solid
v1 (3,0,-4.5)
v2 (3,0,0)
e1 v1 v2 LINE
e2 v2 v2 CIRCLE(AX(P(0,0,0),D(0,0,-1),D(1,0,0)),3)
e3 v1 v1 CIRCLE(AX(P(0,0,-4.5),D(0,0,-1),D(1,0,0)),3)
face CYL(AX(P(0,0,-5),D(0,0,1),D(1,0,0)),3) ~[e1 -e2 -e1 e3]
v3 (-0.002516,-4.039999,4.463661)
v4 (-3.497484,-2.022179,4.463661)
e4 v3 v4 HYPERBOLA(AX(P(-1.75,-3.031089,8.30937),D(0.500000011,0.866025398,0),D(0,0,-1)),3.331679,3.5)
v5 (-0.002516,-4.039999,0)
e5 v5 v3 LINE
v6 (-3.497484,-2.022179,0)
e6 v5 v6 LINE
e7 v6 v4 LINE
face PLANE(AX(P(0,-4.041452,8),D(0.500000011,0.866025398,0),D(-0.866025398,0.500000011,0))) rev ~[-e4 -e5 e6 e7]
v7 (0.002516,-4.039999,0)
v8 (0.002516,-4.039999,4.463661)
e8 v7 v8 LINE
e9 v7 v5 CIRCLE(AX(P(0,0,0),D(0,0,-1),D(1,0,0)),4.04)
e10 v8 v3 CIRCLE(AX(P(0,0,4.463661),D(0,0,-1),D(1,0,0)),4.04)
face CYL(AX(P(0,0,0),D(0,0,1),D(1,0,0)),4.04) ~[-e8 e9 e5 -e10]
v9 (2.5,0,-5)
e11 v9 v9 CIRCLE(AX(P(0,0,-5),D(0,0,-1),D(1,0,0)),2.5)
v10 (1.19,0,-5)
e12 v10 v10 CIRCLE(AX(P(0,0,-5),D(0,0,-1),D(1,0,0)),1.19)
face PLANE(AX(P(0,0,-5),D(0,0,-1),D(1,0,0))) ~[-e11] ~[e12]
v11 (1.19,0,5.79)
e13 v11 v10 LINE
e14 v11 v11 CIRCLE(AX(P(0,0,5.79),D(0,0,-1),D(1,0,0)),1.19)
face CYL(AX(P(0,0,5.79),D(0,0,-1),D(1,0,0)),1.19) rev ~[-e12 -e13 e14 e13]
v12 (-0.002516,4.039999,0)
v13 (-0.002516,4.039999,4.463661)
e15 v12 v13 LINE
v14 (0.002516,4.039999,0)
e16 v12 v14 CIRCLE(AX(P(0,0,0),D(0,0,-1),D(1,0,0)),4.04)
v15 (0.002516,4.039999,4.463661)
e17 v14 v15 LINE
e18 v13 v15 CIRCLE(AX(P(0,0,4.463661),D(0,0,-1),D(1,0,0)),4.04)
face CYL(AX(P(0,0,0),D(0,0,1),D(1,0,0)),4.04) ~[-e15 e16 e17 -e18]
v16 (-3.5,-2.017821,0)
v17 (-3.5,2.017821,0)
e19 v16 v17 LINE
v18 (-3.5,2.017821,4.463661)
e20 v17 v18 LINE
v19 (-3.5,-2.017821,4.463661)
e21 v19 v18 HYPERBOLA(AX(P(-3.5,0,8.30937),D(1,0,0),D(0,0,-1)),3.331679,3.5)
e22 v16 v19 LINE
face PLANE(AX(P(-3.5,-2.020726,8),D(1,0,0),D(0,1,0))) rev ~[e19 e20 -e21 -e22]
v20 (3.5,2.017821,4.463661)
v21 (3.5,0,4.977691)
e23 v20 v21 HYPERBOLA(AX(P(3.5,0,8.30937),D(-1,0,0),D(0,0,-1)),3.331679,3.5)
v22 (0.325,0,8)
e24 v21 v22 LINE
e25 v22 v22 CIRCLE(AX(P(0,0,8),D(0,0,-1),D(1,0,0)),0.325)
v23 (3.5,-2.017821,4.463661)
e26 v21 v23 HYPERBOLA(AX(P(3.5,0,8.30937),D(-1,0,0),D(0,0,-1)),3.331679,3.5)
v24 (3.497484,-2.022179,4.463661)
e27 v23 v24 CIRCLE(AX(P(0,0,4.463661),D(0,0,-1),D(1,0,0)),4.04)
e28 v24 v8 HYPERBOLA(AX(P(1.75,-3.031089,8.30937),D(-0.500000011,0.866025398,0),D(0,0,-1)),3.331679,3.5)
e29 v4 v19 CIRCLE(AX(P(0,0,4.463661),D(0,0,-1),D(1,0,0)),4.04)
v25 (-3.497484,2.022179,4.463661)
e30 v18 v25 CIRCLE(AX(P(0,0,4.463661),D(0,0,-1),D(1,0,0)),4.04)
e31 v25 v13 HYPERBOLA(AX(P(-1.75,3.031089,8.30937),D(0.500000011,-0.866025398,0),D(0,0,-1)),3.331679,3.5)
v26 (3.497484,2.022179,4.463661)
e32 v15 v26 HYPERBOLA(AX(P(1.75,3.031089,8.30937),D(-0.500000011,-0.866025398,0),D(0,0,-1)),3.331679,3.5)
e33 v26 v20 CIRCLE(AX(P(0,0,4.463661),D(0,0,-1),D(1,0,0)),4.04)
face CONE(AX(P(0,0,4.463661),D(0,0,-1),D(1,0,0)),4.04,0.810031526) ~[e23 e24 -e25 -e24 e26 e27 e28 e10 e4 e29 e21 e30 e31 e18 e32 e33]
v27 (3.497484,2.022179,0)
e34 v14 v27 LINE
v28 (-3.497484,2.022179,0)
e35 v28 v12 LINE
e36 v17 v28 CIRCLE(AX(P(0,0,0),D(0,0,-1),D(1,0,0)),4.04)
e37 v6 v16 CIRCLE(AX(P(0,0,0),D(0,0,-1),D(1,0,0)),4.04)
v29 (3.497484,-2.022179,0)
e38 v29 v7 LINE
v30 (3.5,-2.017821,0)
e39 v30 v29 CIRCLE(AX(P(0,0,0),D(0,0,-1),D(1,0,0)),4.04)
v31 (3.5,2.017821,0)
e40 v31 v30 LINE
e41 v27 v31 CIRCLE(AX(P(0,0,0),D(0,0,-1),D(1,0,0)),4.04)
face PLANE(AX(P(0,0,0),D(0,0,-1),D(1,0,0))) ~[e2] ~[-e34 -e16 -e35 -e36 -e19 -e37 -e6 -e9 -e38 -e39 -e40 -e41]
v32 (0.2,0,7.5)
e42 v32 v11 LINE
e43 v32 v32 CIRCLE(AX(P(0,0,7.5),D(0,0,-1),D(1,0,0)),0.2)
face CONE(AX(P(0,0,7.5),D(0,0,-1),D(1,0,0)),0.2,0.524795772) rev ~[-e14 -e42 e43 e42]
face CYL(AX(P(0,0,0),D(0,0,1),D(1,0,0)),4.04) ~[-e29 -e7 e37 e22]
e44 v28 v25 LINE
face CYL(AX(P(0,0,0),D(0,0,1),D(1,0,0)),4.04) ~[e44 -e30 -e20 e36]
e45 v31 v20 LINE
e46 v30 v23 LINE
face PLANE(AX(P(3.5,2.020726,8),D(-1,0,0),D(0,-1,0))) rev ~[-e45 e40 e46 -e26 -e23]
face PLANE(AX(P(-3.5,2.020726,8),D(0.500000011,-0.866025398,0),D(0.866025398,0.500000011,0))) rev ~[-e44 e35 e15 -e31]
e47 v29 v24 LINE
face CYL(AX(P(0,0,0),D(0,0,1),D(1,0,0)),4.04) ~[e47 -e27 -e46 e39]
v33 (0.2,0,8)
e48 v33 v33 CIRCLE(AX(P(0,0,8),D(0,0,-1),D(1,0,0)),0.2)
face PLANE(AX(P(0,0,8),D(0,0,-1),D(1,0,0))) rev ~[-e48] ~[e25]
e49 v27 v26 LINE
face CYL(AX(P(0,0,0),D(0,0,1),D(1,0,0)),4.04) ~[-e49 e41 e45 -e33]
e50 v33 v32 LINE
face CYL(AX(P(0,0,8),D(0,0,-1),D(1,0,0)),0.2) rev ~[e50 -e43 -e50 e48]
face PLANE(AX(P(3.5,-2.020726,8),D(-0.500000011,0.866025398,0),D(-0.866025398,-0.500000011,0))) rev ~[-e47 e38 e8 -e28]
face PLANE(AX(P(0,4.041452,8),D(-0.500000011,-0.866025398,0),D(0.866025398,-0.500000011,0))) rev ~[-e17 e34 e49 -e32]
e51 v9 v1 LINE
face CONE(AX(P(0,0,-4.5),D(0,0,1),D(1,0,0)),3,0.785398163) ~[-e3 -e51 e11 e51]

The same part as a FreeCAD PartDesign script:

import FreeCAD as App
import Part
import Sketcher
Q = App.Units.Quantity


def edges_at(feature, points):
    """Names of the edges that pass closest to the given points."""
    edges = feature.Shape.Edges
    near = lambda p: min(range(len(edges)), key=lambda i: edges[i].distToShape(Part.Vertex(*p))[0])
    return sorted({f"Edge{near(p) + 1}" for p in points})


def add_polygon(sketch, points):
    """Adds a closed chain of lines whose ends are joined by coincident constraints."""
    first, n = sketch.GeometryCount, len(points)
    for a, b in zip(points, points[1:] + points[:1]):
        sketch.addGeometry(Part.LineSegment(App.Vector(*a, 0), App.Vector(*b, 0)), False)
    for i in range(n):
        sketch.addConstraint(Sketcher.Constraint("Coincident", first + i, 2, first + (i + 1) % n, 1))

doc = App.newDocument("Part")
body = doc.addObject("PartDesign::Body", "Body")

# Sketch on XZ plane
sketch1 = body.newObject("Sketcher::SketchObject", "Sketch")
sketch1.AttachmentSupport = (doc.getObject("XZ_Plane"), [""])
sketch1.MapMode = "FlatFace"
add_polygon(sketch1, [(1.19, 5.79), (1.19, -5), (3, -5), (3, 0), (4.04, 0), (4.04, 4.46), (0.33, 8), (0.2, 8), (0.2, 7.5)])  # lines 0-8
sketch1.addConstraint([
    Sketcher.Constraint("Vertical", 0),
    Sketcher.Constraint("Horizontal", 1),
    Sketcher.Constraint("Vertical", 2),
    Sketcher.Constraint("Horizontal", 3),
    Sketcher.Constraint("Vertical", 4),
    Sketcher.Constraint("Horizontal", 6),
    Sketcher.Constraint("Vertical", 7),
    Sketcher.Constraint("PointOnObject", 2, 2, -1),
    Sketcher.Constraint("DistanceY", 2, 1, 2, 2, Q("5 mm")),
    Sketcher.Constraint("DistanceY", 7, 2, 7, 1, Q("0.5 mm")),
    Sketcher.Constraint("DistanceX", -1, 1, 1, 2, Q("3 mm")),
    Sketcher.Constraint("DistanceY", -1, 1, 5, 2, Q("8 mm")),
    Sketcher.Constraint("DistanceX", 1, 1, 1, 2, Q("1.81 mm")),
    Sketcher.Constraint("DistanceX", 3, 1, 3, 2, Q("1.04 mm")),
    Sketcher.Constraint("DistanceY", 0, 2, 0, 1, Q("10.79 mm")),
    Sketcher.Constraint("DistanceX", -1, 1, 6, 2, Q("0.2 mm")),
    Sketcher.Constraint("DistanceX", 6, 2, 6, 1, Q("0.125 mm")),
    Sketcher.Constraint("DistanceY", 4, 1, 4, 2, Q("4.463661 mm")),
])
revolution = body.newObject("PartDesign::Revolution", "Revolution")
revolution.Profile = sketch1
revolution.ReferenceAxis = (sketch1, ["V_Axis"])
revolution.Angle = 360
doc.recompute()

chamfer = body.newObject("PartDesign::Chamfer", "Chamfer")
chamfer.Base = (revolution, edges_at(revolution, [(-3, 0, -5)]))
chamfer.Size = 0.5

# Sketch on XY plane
sketch2 = body.newObject("Sketcher::SketchObject", "Sketch001")
sketch2.AttachmentSupport = (doc.getObject("XY_Plane"), [""])
sketch2.MapMode = "FlatFace"
sketch2.AttachmentOffset = App.Placement(App.Vector(0, 0, 8), App.Rotation())
add_polygon(sketch2, [(5.2, 4.6), (3.5, 4.6), (3.5, 4), (5.2, 3)])  # lines 0-3
add_polygon(sketch2, [(3.5, 2), (3.5, 4), (1.7, 5), (0, 4)])  # lines 4-7
add_polygon(sketch2, [(6.7, 2.1), (5.2, 3), (5.2, 1), (5.9, 0.6)])  # lines 8-11
add_polygon(sketch2, [(5.2, 1), (3.5, 2), (3.5, -2), (5.2, -1)])  # lines 12-15
add_polygon(sketch2, [(0, 6), (1.7, 5), (2.4, 5.4), (1.5, 6.9)])  # lines 16-19
add_polygon(sketch2, [(3.5, -4), (3.5, -2), (0, -4), (1.7, -5)])  # lines 20-23
add_polygon(sketch2, [(-3.5, 2), (0, 4), (-1.7, 5), (-3.5, 4)])  # lines 24-27
add_polygon(sketch2, [(-1.7, 5), (0, 6), (-1.4, 6.9), (-2.3, 5.4)])  # lines 28-31
add_polygon(sketch2, [(5.8, -0.7), (5.2, -1), (5.2, -3), (6.6, -2.2)])  # lines 32-35
add_polygon(sketch2, [(5.2, -3), (3.5, -4), (3.5, -4.8), (5.2, -4.8)])  # lines 36-39
add_polygon(sketch2, [(-1.7, -5), (0, -4), (-3.5, -2), (-3.5, -4)])  # lines 40-43
add_polygon(sketch2, [(-3.5, -2), (-3.5, 2), (-5.2, 1), (-5.2, -1)])  # lines 44-47
add_polygon(sketch2, [(2.3, -5.4), (1.7, -5), (0, -6), (1.4, -6.9)])  # lines 48-51
add_polygon(sketch2, [(0, -6), (-1.7, -5), (-2.4, -5.4), (-1.5, -6.9)])  # lines 52-55
add_polygon(sketch2, [(-5.2, 3), (-3.5, 4), (-3.5, 4.8), (-5.2, 4.8)])  # lines 56-59
add_polygon(sketch2, [(-5.8, 0.7), (-5.2, 1), (-5.2, 3), (-6.6, 2.2)])  # lines 60-63
add_polygon(sketch2, [(-3.5, -4.6), (-3.5, -4), (-5.2, -3), (-5.2, -4.6)])  # lines 64-67
add_polygon(sketch2, [(-5.2, -3), (-5.2, -1), (-5.9, -0.6), (-6.7, -2.1)])  # lines 68-71
sketch2.addConstraint([
    Sketcher.Constraint("Horizontal", 0),
    Sketcher.Constraint("Vertical", 1),
    Sketcher.Constraint("Vertical", 3),
    Sketcher.Constraint("Vertical", 4),
    Sketcher.Constraint("Vertical", 9),
    Sketcher.Constraint("Vertical", 13),
    Sketcher.Constraint("Vertical", 15),
    Sketcher.Constraint("Vertical", 20),
    Sketcher.Constraint("Vertical", 27),
    Sketcher.Constraint("Vertical", 33),
    Sketcher.Constraint("Vertical", 37),
    Sketcher.Constraint("Horizontal", 38),
    Sketcher.Constraint("Vertical", 39),
    Sketcher.Constraint("Vertical", 42),
    Sketcher.Constraint("Vertical", 44),
    Sketcher.Constraint("Vertical", 46),
    Sketcher.Constraint("Vertical", 57),
    Sketcher.Constraint("Horizontal", 58),
    Sketcher.Constraint("Vertical", 59),
    Sketcher.Constraint("Vertical", 61),
    Sketcher.Constraint("Vertical", 64),
    Sketcher.Constraint("Vertical", 66),
    Sketcher.Constraint("Horizontal", 67),
    Sketcher.Constraint("Vertical", 68),
    Sketcher.Constraint("Coincident", 4, 2, 1, 2),
    Sketcher.Constraint("Coincident", 8, 2, 2, 2),
    Sketcher.Constraint("Coincident", 12, 2, 7, 2),
    Sketcher.Constraint("Coincident", 15, 2, 9, 2),
    Sketcher.Constraint("Coincident", 16, 2, 5, 2),
    Sketcher.Constraint("Coincident", 20, 2, 13, 2),
    Sketcher.Constraint("Coincident", 24, 2, 6, 2),
    Sketcher.Constraint("Coincident", 28, 2, 19, 2),
    Sketcher.Constraint("Coincident", 31, 2, 25, 2),
    Sketcher.Constraint("Coincident", 32, 2, 14, 2),
    Sketcher.Constraint("Coincident", 36, 2, 23, 2),
    Sketcher.Constraint("Coincident", 39, 2, 33, 2),
    Sketcher.Constraint("Coincident", 40, 2, 21, 2),
    Sketcher.Constraint("Coincident", 44, 2, 27, 2),
    Sketcher.Constraint("Coincident", 47, 2, 41, 2),
    Sketcher.Constraint("Coincident", 48, 2, 22, 2),
    Sketcher.Constraint("Coincident", 52, 2, 43, 2),
    Sketcher.Constraint("Coincident", 55, 2, 49, 2),
    Sketcher.Constraint("Coincident", 56, 2, 26, 2),
    Sketcher.Constraint("Coincident", 60, 2, 45, 2),
    Sketcher.Constraint("Coincident", 61, 2, 59, 2),
    Sketcher.Constraint("Coincident", 64, 2, 42, 2),
    Sketcher.Constraint("Coincident", 68, 2, 46, 2),
    Sketcher.Constraint("Coincident", 71, 2, 65, 2),
    Sketcher.Constraint("Symmetric", 6, 2, 21, 2, -1, 1),
    Sketcher.Constraint("Symmetric", 22, 2, 25, 2, -1, 1),
    Sketcher.Constraint("Symmetric", 23, 2, 26, 2, -1, 1),
    Sketcher.Constraint("Symmetric", 5, 2, 43, 2, -1, 1),
    Sketcher.Constraint("Symmetric", 14, 2, 45, 2, -1, 1),
    Sketcher.Constraint("Symmetric", 19, 2, 49, 2, -1, 1),
    Sketcher.Constraint("Symmetric", 29, 2, 50, 2, -1, 1),
    Sketcher.Constraint("Symmetric", 30, 2, 51, 2, -1, 1),
    Sketcher.Constraint("Symmetric", 17, 2, 53, 2, -1, 1),
    Sketcher.Constraint("Symmetric", 18, 2, 54, 2, -1, 1),
    Sketcher.Constraint("Symmetric", 34, 2, 62, 2, -1, 1),
    Sketcher.Constraint("Symmetric", 35, 2, 63, 2, -1, 1),
    Sketcher.Constraint("Symmetric", 10, 2, 69, 2, -1, 1),
    Sketcher.Constraint("Symmetric", 11, 2, 70, 2, -1, 1),
    Sketcher.Constraint("Symmetric", 5, 2, 25, 2, -2),
    Sketcher.Constraint("PointOnObject", 6, 2, -2),
    Sketcher.Constraint("PointOnObject", 19, 2, -2),
    Sketcher.Constraint("Parallel", 2, 5),
    Sketcher.Constraint("Parallel", 5, 7),
    Sketcher.Constraint("Parallel", 7, 8),
    Sketcher.Constraint("Parallel", 8, 10),
    Sketcher.Constraint("Perpendicular", 10, 11),
    Sketcher.Constraint("Perpendicular", 11, 12),
    Sketcher.Constraint("Parallel", 6, 14),
    Sketcher.Constraint("Parallel", 12, 16),
    Sketcher.Constraint("Parallel", 14, 17),
    Sketcher.Constraint("Perpendicular", 17, 18),
    Sketcher.Constraint("Perpendicular", 18, 19),
    Sketcher.Constraint("Parallel", 19, 21),
    Sketcher.Constraint("Parallel", 16, 22),
    Sketcher.Constraint("Parallel", 21, 23),
    Sketcher.Constraint("Parallel", 23, 24),
    Sketcher.Constraint("Parallel", 25, 29),
    Sketcher.Constraint("Perpendicular", 29, 30),
    Sketcher.Constraint("Perpendicular", 30, 31),
    Sketcher.Constraint("Parallel", 28, 32),
    Sketcher.Constraint("Parallel", 32, 34),
    Sketcher.Constraint("Perpendicular", 34, 35),
    Sketcher.Constraint("Perpendicular", 35, 36),
    Sketcher.Constraint("Parallel", 31, 41),
    Sketcher.Constraint("Parallel", 41, 43),
    Sketcher.Constraint("Parallel", 43, 47),
    Sketcher.Constraint("Parallel", 55, 56),
    Sketcher.Constraint("Parallel", 52, 65),
    Sketcher.Constraint("Equal", 37, 57),
    Sketcher.Constraint("Equal", 1, 64),
    Sketcher.Constraint("Equal", 2, 6),
    Sketcher.Constraint("Equal", 10, 17),
    Sketcher.Constraint("Equal", 8, 19),
    Sketcher.Constraint("Equal", 31, 32),
    Sketcher.Constraint("DistanceX", -1, 1, 0, 2, Q("3.5 mm")),
    Sketcher.Constraint("DistanceX", 0, 2, 0, 1, Q("1.729439 mm")),
    Sketcher.Constraint("DistanceY", 1, 2, 1, 1, Q("0.632072 mm")),
    Sketcher.Constraint("DistanceY", 13, 2, 13, 1, Q("4.041452 mm")),
    Sketcher.Constraint("DistanceY", 37, 2, 37, 1, Q("0.752862 mm")),
    Sketcher.Constraint("Distance", 10, Q("0.752861 mm")),
    Sketcher.Constraint("Distance", 31, Q("0.632072 mm")),
])
pocket1 = body.newObject("PartDesign::Pocket", "Pocket")
pocket1.Profile = sketch2
pocket1.Type = "ThroughAll"

doc.recompute()
